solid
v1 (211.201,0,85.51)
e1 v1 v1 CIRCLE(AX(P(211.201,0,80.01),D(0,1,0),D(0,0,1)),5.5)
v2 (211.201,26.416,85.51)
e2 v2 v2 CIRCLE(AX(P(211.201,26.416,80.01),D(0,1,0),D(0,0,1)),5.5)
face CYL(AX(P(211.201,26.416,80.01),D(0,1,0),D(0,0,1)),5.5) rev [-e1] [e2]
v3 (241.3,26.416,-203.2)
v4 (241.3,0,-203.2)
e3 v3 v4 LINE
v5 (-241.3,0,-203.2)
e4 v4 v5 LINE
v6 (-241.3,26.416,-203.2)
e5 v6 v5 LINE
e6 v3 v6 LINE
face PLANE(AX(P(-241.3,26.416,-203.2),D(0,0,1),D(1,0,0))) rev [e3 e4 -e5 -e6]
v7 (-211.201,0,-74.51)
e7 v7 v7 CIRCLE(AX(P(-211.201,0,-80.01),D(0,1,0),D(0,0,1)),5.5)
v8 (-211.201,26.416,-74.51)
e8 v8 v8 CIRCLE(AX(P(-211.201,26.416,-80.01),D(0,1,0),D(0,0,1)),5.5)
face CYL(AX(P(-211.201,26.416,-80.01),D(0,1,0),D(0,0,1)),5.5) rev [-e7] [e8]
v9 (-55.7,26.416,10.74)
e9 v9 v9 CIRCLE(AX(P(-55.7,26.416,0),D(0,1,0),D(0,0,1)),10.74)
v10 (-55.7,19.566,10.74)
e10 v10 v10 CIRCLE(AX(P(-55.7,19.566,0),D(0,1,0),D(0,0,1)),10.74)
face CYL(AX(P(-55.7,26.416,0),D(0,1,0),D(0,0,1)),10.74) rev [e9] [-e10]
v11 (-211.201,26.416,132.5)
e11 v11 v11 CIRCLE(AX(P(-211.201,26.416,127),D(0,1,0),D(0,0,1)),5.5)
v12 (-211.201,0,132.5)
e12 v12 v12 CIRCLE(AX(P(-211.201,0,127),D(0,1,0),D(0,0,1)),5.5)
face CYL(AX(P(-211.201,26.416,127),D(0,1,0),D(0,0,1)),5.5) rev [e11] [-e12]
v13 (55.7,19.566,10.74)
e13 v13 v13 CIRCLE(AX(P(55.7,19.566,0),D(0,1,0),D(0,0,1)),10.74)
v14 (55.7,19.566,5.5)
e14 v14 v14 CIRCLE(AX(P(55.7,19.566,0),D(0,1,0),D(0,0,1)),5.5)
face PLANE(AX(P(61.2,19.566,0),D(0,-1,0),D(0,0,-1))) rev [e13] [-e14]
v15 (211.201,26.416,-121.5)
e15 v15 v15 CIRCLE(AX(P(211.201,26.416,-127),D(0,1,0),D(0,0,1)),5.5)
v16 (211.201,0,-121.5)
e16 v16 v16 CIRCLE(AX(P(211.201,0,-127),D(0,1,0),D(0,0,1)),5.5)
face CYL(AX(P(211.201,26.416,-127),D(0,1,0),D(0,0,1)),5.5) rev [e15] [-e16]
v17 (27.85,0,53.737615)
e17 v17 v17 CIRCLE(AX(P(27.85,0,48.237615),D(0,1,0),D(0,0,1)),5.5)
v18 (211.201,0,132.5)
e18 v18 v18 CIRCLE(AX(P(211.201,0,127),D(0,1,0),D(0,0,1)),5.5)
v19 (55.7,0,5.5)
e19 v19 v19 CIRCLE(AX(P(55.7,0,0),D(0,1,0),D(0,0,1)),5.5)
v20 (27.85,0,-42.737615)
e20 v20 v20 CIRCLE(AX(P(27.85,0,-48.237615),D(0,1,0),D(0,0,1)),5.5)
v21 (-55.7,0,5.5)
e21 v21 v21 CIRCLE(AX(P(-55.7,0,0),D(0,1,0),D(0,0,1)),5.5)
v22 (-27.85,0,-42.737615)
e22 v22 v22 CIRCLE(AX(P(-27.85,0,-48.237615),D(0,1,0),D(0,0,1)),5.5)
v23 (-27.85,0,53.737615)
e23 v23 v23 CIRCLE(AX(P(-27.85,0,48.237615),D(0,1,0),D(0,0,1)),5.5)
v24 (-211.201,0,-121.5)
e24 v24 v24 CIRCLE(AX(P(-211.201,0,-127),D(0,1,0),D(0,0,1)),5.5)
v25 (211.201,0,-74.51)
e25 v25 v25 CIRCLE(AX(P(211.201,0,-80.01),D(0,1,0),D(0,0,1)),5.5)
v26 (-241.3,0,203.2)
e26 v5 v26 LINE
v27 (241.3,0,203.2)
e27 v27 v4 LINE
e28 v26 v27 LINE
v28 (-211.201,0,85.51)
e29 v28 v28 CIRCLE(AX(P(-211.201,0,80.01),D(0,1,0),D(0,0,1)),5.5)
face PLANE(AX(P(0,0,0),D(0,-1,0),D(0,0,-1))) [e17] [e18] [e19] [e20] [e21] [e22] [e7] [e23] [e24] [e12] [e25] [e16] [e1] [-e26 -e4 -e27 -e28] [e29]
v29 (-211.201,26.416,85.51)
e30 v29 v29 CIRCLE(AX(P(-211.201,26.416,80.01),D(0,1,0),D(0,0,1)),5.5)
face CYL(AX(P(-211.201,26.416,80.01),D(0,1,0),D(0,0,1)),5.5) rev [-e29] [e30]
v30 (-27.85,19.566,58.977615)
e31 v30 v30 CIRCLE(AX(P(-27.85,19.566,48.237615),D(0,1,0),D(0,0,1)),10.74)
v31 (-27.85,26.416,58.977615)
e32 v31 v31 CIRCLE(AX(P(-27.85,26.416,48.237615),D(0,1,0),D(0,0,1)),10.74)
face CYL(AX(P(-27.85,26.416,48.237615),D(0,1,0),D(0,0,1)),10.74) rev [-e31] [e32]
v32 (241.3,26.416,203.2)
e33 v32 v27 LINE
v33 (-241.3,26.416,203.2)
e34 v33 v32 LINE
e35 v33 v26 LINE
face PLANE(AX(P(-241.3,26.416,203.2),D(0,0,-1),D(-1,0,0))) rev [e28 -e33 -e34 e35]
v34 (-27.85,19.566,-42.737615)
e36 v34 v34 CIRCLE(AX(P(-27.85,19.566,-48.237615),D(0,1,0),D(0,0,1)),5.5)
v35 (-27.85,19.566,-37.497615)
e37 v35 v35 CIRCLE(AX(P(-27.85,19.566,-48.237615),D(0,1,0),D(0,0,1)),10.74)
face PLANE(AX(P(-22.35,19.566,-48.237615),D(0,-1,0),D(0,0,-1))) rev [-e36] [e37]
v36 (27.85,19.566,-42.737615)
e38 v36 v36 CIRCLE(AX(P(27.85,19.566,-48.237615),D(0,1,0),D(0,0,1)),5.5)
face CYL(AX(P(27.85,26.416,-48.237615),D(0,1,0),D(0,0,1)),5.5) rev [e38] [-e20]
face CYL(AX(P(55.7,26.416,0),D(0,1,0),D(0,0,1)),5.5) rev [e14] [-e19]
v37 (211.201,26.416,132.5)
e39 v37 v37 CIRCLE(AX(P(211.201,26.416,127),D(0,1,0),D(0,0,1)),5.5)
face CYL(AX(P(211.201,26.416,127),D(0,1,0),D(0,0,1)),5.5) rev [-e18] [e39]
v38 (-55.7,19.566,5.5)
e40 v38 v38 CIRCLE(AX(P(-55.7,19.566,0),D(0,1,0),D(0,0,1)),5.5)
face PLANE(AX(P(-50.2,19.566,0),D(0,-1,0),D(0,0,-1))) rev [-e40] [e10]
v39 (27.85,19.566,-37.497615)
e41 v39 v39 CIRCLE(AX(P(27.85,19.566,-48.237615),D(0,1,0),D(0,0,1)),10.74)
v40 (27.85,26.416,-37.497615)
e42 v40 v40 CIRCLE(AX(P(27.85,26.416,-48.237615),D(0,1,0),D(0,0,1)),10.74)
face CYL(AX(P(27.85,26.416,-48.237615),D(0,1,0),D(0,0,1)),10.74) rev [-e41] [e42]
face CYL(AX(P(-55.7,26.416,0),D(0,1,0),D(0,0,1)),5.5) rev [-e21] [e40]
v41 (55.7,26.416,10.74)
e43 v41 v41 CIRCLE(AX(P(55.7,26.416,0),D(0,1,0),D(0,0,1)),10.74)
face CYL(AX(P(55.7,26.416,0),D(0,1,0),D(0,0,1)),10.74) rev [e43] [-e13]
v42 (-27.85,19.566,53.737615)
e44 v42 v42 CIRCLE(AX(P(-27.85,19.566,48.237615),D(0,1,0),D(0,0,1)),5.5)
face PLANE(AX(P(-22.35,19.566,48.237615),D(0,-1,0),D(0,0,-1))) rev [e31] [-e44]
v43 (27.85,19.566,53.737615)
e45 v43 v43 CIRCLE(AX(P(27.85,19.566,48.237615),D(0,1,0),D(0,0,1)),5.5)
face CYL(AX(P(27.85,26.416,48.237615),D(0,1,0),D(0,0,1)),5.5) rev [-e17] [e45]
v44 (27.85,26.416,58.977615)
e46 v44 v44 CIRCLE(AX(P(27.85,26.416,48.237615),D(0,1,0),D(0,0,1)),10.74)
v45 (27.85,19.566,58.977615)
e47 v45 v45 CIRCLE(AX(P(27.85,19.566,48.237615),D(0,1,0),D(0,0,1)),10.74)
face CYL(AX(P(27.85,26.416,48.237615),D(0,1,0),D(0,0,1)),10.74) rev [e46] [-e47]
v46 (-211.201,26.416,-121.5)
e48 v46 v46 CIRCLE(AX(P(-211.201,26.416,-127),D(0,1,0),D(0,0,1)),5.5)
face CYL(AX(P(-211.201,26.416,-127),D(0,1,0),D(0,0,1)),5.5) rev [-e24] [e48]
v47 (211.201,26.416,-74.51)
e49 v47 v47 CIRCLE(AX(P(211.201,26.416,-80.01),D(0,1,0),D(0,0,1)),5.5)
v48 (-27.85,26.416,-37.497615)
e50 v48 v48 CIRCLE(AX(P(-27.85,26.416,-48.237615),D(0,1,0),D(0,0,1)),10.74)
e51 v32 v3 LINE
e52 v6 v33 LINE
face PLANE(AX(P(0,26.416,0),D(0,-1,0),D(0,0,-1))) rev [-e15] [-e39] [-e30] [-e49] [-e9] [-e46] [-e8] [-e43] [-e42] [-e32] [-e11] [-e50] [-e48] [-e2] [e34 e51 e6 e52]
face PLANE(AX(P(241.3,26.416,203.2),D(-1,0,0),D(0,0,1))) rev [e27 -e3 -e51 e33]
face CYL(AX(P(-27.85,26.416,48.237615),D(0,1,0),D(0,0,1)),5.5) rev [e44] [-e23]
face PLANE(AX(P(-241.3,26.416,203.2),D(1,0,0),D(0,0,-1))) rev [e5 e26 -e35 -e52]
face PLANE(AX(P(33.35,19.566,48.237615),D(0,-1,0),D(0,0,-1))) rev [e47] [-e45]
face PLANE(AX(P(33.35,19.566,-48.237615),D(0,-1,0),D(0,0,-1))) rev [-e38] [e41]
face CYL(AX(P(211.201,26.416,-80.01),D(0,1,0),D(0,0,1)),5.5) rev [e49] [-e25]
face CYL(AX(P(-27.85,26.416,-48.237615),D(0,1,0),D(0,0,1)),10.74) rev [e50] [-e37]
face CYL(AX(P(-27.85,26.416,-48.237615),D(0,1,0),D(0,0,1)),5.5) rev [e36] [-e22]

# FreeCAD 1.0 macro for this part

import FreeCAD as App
import Part
import Sketcher
Q = App.Units.Quantity


def add_polygon(sketch, points):
    """Adds a closed chain of lines whose ends are joined by coincident constraints."""
    first, n = sketch.GeometryCount, len(points)
    for a, b in zip(points, points[1:] + points[:1]):
        sketch.addGeometry(Part.LineSegment(App.Vector(*a, 0), App.Vector(*b, 0)), False)
    for i in range(n):
        sketch.addConstraint(Sketcher.Constraint("Coincident", first + i, 2, first + (i + 1) % n, 1))

doc = App.newDocument("Part")
body = doc.addObject("PartDesign::Body", "Body")

# Sketch on XZ plane
sketch1 = body.newObject("Sketcher::SketchObject", "Sketch")
sketch1.AttachmentSupport = (doc.getObject("XZ_Plane"), [""])
sketch1.MapMode = "FlatFace"
add_polygon(sketch1, [(-241.3, -203.2), (-241.3, 203.2), (241.3, 203.2), (241.3, -203.2)])  # lines 0-3
sketch1.addConstraint(Sketcher.Constraint("Vertical", 0))
sketch1.addConstraint(Sketcher.Constraint("Horizontal", 1))
sketch1.addConstraint(Sketcher.Constraint("Vertical", 2))
sketch1.addConstraint(Sketcher.Constraint("Horizontal", 3))
sketch1.addConstraint(Sketcher.Constraint("Symmetric", 0, 2, 2, 2, -1, 1))
sketch1.addConstraint(Sketcher.Constraint("DistanceX", 1, 1, 1, 2, Q("19 in")))
sketch1.addConstraint(Sketcher.Constraint("DistanceY", 0, 1, 0, 2, Q("16 in")))
pad1 = body.newObject("PartDesign::Pad", "Pad")
pad1.Profile = sketch1
pad1.Length = Q("1.04 in")
pad1.Reversed = True

# Sketch on XZ plane
sketch2 = body.newObject("Sketcher::SketchObject", "Sketch001")
sketch2.AttachmentSupport = (doc.getObject("XZ_Plane"), [""])
sketch2.MapMode = "FlatFace"
sketch2.AttachmentOffset = App.Placement(App.Vector(0, 0, -1.04 * 25.4), App.Rotation())
sketch2.addGeometry(Part.Circle(App.Vector(-211.201, 80.01, 0), App.Vector(0, 0, 1), 1.27), False)
sketch2.addGeometry(Part.Circle(App.Vector(-211.201, -80.01, 0), App.Vector(0, 0, 1), 1.27), False)
sketch2.addGeometry(Part.Circle(App.Vector(211.201, 80.01, 0), App.Vector(0, 0, 1), 1.27), False)
sketch2.addGeometry(Part.Circle(App.Vector(211.201, -80.01, 0), App.Vector(0, 0, 1), 1.27), False)
sketch2.addGeometry(Part.Circle(App.Vector(55.7, 0, 0), App.Vector(0, 0, 1), 5.25), False)
sketch2.addGeometry(Part.Circle(App.Vector(27.85, 48.237615, 0), App.Vector(0, 0, 1), 5.25), False)
sketch2.addGeometry(Part.Circle(App.Vector(-27.85, 48.237615, 0), App.Vector(0, 0, 1), 5.25), False)
sketch2.addGeometry(Part.Circle(App.Vector(-55.7, 0, 0), App.Vector(0, 0, 1), 5.25), False)
sketch2.addGeometry(Part.Circle(App.Vector(-27.85, -48.237615, 0), App.Vector(0, 0, 1), 5.25), False)
sketch2.addGeometry(Part.Circle(App.Vector(27.85, -48.237615, 0), App.Vector(0, 0, 1), 5.25), False)
sketch2.addGeometry(Part.Circle(App.Vector(-211.201, 127, 0), App.Vector(0, 0, 1), 1.27), False)
sketch2.addGeometry(Part.Circle(App.Vector(211.201, 127, 0), App.Vector(0, 0, 1), 1.27), False)
sketch2.addGeometry(Part.Circle(App.Vector(211.201, -127, 0), App.Vector(0, 0, 1), 1.27), False)
sketch2.addGeometry(Part.Circle(App.Vector(-211.201, -127, 0), App.Vector(0, 0, 1), 1.27), False)
sketch2.addConstraint(Sketcher.Constraint("Equal", 0, 1))
sketch2.addConstraint(Sketcher.Constraint("Equal", 1, 2))
sketch2.addConstraint(Sketcher.Constraint("Equal", 2, 3))
sketch2.addConstraint(Sketcher.Constraint("Equal", 4, 5))
sketch2.addConstraint(Sketcher.Constraint("Equal", 5, 6))
sketch2.addConstraint(Sketcher.Constraint("Equal", 6, 7))
sketch2.addConstraint(Sketcher.Constraint("Equal", 7, 8))
sketch2.addConstraint(Sketcher.Constraint("Equal", 8, 9))
sketch2.addConstraint(Sketcher.Constraint("Equal", 3, 10))
sketch2.addConstraint(Sketcher.Constraint("Equal", 10, 11))
sketch2.addConstraint(Sketcher.Constraint("Equal", 11, 12))
sketch2.addConstraint(Sketcher.Constraint("Equal", 12, 13))
sketch2.addConstraint(Sketcher.Constraint("Symmetric", 1, 3, 2, 3, -1, 1))
sketch2.addConstraint(Sketcher.Constraint("Symmetric", 0, 3, 3, 3, -1, 1))
sketch2.addConstraint(Sketcher.Constraint("Symmetric", 4, 3, 7, 3, -1, 1))
sketch2.addConstraint(Sketcher.Constraint("Symmetric", 5, 3, 8, 3, -1, 1))
sketch2.addConstraint(Sketcher.Constraint("Symmetric", 6, 3, 9, 3, -1, 1))
sketch2.addConstraint(Sketcher.Constraint("Symmetric", 10, 3, 12, 3, -1, 1))
sketch2.addConstraint(Sketcher.Constraint("Symmetric", 11, 3, 13, 3, -1, 1))
sketch2.addConstraint(Sketcher.Constraint("Symmetric", 0, 3, 2, 3, -2))
sketch2.addConstraint(Sketcher.Constraint("Symmetric", 5, 3, 6, 3, -2))
sketch2.addConstraint(Sketcher.Constraint("Symmetric", 10, 3, 11, 3, -2))
sketch2.addConstraint(Sketcher.Constraint("PointOnObject", 4, 3, -1))
sketch2.addConstraint(Sketcher.Constraint("Vertical", 1, 3, 10, 3))
sketch2.addConstraint(Sketcher.Constraint("Diameter", 0, Q("0.1 in")))
sketch2.addConstraint(Sketcher.Constraint("DistanceY", -1, 1, 10, 3, Q("5 in")))
sketch2.addConstraint(Sketcher.Constraint("DistanceY", 1, 3, 0, 3, Q("6.3 in")))
sketch2.addConstraint(Sketcher.Constraint("Diameter", 4, 10.5))
sketch2.addConstraint(Sketcher.Constraint("DistanceX", 0, 3, 2, 3, Q("16.63 in")))
sketch2.addConstraint(Sketcher.Constraint("DistanceX", -1, 1, 4, 3, 55.7))
sketch2.addConstraint(Sketcher.Constraint("DistanceX", -1, 1, 5, 3, 27.85))
sketch2.addConstraint(Sketcher.Constraint("DistanceY", 8, 3, 6, 3, 96.47523))
pocket1 = body.newObject("PartDesign::Pocket", "Pocket")
pocket1.Profile = sketch2
pocket1.Type = "ThroughAll"
pocket1.Reversed = True

# Sketch on XZ plane
sketch3 = body.newObject("Sketcher::SketchObject", "Sketch002")
sketch3.AttachmentSupport = (doc.getObject("XZ_Plane"), [""])
sketch3.MapMode = "FlatFace"
sketch3.AttachmentOffset = App.Placement(App.Vector(0, 0, -1.04 * 25.4), App.Rotation())
sketch3.addGeometry(Part.Circle(App.Vector(27.85, -48.237615, 0), App.Vector(0, 0, 1), 5.5), False)
sketch3.addGeometry(Part.Circle(App.Vector(55.7, 0, 0), App.Vector(0, 0, 1), 5.5), False)
sketch3.addGeometry(Part.Circle(App.Vector(27.85, 48.237615, 0), App.Vector(0, 0, 1), 5.5), False)
sketch3.addGeometry(Part.Circle(App.Vector(-27.85, 48.237615, 0), App.Vector(0, 0, 1), 5.5), False)
sketch3.addGeometry(Part.Circle(App.Vector(-55.7, 0, 0), App.Vector(0, 0, 1), 5.5), False)
sketch3.addGeometry(Part.Circle(App.Vector(-27.85, -48.237615, 0), App.Vector(0, 0, 1), 5.5), False)
sketch3.addConstraint(Sketcher.Constraint("Equal", 0, 1))
sketch3.addConstraint(Sketcher.Constraint("Equal", 1, 2))
sketch3.addConstraint(Sketcher.Constraint("Equal", 2, 3))
sketch3.addConstraint(Sketcher.Constraint("Equal", 3, 4))
sketch3.addConstraint(Sketcher.Constraint("Equal", 4, 5))
sketch3.addConstraint(Sketcher.Constraint("Symmetric", 0, 3, 3, 3, -1, 1))
sketch3.addConstraint(Sketcher.Constraint("Symmetric", 1, 3, 4, 3, -1, 1))
sketch3.addConstraint(Sketcher.Constraint("Symmetric", 2, 3, 5, 3, -1, 1))
sketch3.addConstraint(Sketcher.Constraint("Symmetric", 2, 3, 3, 3, -2))
sketch3.addConstraint(Sketcher.Constraint("PointOnObject", 1, 3, -1))
sketch3.addConstraint(Sketcher.Constraint("Diameter", 0, 11.0))
sketch3.addConstraint(Sketcher.Constraint("DistanceX", -1, 1, 0, 3, 27.85))
sketch3.addConstraint(Sketcher.Constraint("DistanceX", -1, 1, 1, 3, 55.7))
sketch3.addConstraint(Sketcher.Constraint("DistanceY", 0, 3, 2, 3, 96.47523))
doc.recompute()
hole = body.newObject("PartDesign::Hole", "Hole")
hole.Profile = sketch3
hole.ThreadType = "None"
hole.Diameter = 11
hole.DepthType = "ThroughAll"
hole.HoleCutType = "Counterbore"
hole.HoleCutDiameter = 21.48
hole.HoleCutDepth = 6.85
hole.Reversed = True

# Sketch on XZ plane
sketch4 = body.newObject("Sketcher::SketchObject", "Sketch003")
sketch4.AttachmentSupport = (doc.getObject("XZ_Plane"), [""])
sketch4.MapMode = "FlatFace"
sketch4.AttachmentOffset = App.Placement(App.Vector(0, 0, -1.04 * 25.4), App.Rotation())
sketch4.addGeometry(Part.Circle(App.Vector(-211.201, -127, 0), App.Vector(0, 0, 1), 5.5), False)
sketch4.addGeometry(Part.Circle(App.Vector(-211.201, -80.01, 0), App.Vector(0, 0, 1), 5.5), False)
sketch4.addGeometry(Part.Circle(App.Vector(-211.201, 80.01, 0), App.Vector(0, 0, 1), 5.5), False)
sketch4.addGeometry(Part.Circle(App.Vector(-211.201, 127, 0), App.Vector(0, 0, 1), 5.5), False)
sketch4.addGeometry(Part.Circle(App.Vector(211.201, 127, 0), App.Vector(0, 0, 1), 5.5), False)
sketch4.addGeometry(Part.Circle(App.Vector(211.201, 80.01, 0), App.Vector(0, 0, 1), 5.5), False)
sketch4.addGeometry(Part.Circle(App.Vector(211.201, -80.01, 0), App.Vector(0, 0, 1), 5.5), False)
sketch4.addGeometry(Part.Circle(App.Vector(211.201, -127, 0), App.Vector(0, 0, 1), 5.5), False)
sketch4.addConstraint(Sketcher.Constraint("Equal", 0, 1))
sketch4.addConstraint(Sketcher.Constraint("Equal", 1, 2))
sketch4.addConstraint(Sketcher.Constraint("Equal", 2, 3))
sketch4.addConstraint(Sketcher.Constraint("Equal", 3, 4))
sketch4.addConstraint(Sketcher.Constraint("Equal", 4, 5))
sketch4.addConstraint(Sketcher.Constraint("Equal", 5, 6))
sketch4.addConstraint(Sketcher.Constraint("Equal", 6, 7))
sketch4.addConstraint(Sketcher.Constraint("Symmetric", 0, 3, 4, 3, -1, 1))
sketch4.addConstraint(Sketcher.Constraint("Symmetric", 1, 3, 5, 3, -1, 1))
sketch4.addConstraint(Sketcher.Constraint("Symmetric", 2, 3, 6, 3, -1, 1))
sketch4.addConstraint(Sketcher.Constraint("Symmetric", 3, 3, 7, 3, -1, 1))
sketch4.addConstraint(Sketcher.Constraint("Symmetric", 3, 3, 4, 3, -2))
sketch4.addConstraint(Sketcher.Constraint("Symmetric", 2, 3, 5, 3, -2))
sketch4.addConstraint(Sketcher.Constraint("Vertical", 0, 3, 1, 3))
sketch4.addConstraint(Sketcher.Constraint("DistanceY", 0, 3, -1, 1, Q("5 in")))
sketch4.addConstraint(Sketcher.Constraint("DistanceY", 1, 3, 2, 3, Q("6.3 in")))
sketch4.addConstraint(Sketcher.Constraint("Diameter", 0, 11.0))
sketch4.addConstraint(Sketcher.Constraint("DistanceX", 3, 3, 4, 3, Q("16.63 in")))
doc.recompute()
hole2 = body.newObject("PartDesign::Hole", "Hole001")
hole2.Profile = sketch4
hole2.ThreadType = "None"
hole2.Diameter = 11
hole2.DepthType = "ThroughAll"
hole2.Reversed = True

doc.recompute()
